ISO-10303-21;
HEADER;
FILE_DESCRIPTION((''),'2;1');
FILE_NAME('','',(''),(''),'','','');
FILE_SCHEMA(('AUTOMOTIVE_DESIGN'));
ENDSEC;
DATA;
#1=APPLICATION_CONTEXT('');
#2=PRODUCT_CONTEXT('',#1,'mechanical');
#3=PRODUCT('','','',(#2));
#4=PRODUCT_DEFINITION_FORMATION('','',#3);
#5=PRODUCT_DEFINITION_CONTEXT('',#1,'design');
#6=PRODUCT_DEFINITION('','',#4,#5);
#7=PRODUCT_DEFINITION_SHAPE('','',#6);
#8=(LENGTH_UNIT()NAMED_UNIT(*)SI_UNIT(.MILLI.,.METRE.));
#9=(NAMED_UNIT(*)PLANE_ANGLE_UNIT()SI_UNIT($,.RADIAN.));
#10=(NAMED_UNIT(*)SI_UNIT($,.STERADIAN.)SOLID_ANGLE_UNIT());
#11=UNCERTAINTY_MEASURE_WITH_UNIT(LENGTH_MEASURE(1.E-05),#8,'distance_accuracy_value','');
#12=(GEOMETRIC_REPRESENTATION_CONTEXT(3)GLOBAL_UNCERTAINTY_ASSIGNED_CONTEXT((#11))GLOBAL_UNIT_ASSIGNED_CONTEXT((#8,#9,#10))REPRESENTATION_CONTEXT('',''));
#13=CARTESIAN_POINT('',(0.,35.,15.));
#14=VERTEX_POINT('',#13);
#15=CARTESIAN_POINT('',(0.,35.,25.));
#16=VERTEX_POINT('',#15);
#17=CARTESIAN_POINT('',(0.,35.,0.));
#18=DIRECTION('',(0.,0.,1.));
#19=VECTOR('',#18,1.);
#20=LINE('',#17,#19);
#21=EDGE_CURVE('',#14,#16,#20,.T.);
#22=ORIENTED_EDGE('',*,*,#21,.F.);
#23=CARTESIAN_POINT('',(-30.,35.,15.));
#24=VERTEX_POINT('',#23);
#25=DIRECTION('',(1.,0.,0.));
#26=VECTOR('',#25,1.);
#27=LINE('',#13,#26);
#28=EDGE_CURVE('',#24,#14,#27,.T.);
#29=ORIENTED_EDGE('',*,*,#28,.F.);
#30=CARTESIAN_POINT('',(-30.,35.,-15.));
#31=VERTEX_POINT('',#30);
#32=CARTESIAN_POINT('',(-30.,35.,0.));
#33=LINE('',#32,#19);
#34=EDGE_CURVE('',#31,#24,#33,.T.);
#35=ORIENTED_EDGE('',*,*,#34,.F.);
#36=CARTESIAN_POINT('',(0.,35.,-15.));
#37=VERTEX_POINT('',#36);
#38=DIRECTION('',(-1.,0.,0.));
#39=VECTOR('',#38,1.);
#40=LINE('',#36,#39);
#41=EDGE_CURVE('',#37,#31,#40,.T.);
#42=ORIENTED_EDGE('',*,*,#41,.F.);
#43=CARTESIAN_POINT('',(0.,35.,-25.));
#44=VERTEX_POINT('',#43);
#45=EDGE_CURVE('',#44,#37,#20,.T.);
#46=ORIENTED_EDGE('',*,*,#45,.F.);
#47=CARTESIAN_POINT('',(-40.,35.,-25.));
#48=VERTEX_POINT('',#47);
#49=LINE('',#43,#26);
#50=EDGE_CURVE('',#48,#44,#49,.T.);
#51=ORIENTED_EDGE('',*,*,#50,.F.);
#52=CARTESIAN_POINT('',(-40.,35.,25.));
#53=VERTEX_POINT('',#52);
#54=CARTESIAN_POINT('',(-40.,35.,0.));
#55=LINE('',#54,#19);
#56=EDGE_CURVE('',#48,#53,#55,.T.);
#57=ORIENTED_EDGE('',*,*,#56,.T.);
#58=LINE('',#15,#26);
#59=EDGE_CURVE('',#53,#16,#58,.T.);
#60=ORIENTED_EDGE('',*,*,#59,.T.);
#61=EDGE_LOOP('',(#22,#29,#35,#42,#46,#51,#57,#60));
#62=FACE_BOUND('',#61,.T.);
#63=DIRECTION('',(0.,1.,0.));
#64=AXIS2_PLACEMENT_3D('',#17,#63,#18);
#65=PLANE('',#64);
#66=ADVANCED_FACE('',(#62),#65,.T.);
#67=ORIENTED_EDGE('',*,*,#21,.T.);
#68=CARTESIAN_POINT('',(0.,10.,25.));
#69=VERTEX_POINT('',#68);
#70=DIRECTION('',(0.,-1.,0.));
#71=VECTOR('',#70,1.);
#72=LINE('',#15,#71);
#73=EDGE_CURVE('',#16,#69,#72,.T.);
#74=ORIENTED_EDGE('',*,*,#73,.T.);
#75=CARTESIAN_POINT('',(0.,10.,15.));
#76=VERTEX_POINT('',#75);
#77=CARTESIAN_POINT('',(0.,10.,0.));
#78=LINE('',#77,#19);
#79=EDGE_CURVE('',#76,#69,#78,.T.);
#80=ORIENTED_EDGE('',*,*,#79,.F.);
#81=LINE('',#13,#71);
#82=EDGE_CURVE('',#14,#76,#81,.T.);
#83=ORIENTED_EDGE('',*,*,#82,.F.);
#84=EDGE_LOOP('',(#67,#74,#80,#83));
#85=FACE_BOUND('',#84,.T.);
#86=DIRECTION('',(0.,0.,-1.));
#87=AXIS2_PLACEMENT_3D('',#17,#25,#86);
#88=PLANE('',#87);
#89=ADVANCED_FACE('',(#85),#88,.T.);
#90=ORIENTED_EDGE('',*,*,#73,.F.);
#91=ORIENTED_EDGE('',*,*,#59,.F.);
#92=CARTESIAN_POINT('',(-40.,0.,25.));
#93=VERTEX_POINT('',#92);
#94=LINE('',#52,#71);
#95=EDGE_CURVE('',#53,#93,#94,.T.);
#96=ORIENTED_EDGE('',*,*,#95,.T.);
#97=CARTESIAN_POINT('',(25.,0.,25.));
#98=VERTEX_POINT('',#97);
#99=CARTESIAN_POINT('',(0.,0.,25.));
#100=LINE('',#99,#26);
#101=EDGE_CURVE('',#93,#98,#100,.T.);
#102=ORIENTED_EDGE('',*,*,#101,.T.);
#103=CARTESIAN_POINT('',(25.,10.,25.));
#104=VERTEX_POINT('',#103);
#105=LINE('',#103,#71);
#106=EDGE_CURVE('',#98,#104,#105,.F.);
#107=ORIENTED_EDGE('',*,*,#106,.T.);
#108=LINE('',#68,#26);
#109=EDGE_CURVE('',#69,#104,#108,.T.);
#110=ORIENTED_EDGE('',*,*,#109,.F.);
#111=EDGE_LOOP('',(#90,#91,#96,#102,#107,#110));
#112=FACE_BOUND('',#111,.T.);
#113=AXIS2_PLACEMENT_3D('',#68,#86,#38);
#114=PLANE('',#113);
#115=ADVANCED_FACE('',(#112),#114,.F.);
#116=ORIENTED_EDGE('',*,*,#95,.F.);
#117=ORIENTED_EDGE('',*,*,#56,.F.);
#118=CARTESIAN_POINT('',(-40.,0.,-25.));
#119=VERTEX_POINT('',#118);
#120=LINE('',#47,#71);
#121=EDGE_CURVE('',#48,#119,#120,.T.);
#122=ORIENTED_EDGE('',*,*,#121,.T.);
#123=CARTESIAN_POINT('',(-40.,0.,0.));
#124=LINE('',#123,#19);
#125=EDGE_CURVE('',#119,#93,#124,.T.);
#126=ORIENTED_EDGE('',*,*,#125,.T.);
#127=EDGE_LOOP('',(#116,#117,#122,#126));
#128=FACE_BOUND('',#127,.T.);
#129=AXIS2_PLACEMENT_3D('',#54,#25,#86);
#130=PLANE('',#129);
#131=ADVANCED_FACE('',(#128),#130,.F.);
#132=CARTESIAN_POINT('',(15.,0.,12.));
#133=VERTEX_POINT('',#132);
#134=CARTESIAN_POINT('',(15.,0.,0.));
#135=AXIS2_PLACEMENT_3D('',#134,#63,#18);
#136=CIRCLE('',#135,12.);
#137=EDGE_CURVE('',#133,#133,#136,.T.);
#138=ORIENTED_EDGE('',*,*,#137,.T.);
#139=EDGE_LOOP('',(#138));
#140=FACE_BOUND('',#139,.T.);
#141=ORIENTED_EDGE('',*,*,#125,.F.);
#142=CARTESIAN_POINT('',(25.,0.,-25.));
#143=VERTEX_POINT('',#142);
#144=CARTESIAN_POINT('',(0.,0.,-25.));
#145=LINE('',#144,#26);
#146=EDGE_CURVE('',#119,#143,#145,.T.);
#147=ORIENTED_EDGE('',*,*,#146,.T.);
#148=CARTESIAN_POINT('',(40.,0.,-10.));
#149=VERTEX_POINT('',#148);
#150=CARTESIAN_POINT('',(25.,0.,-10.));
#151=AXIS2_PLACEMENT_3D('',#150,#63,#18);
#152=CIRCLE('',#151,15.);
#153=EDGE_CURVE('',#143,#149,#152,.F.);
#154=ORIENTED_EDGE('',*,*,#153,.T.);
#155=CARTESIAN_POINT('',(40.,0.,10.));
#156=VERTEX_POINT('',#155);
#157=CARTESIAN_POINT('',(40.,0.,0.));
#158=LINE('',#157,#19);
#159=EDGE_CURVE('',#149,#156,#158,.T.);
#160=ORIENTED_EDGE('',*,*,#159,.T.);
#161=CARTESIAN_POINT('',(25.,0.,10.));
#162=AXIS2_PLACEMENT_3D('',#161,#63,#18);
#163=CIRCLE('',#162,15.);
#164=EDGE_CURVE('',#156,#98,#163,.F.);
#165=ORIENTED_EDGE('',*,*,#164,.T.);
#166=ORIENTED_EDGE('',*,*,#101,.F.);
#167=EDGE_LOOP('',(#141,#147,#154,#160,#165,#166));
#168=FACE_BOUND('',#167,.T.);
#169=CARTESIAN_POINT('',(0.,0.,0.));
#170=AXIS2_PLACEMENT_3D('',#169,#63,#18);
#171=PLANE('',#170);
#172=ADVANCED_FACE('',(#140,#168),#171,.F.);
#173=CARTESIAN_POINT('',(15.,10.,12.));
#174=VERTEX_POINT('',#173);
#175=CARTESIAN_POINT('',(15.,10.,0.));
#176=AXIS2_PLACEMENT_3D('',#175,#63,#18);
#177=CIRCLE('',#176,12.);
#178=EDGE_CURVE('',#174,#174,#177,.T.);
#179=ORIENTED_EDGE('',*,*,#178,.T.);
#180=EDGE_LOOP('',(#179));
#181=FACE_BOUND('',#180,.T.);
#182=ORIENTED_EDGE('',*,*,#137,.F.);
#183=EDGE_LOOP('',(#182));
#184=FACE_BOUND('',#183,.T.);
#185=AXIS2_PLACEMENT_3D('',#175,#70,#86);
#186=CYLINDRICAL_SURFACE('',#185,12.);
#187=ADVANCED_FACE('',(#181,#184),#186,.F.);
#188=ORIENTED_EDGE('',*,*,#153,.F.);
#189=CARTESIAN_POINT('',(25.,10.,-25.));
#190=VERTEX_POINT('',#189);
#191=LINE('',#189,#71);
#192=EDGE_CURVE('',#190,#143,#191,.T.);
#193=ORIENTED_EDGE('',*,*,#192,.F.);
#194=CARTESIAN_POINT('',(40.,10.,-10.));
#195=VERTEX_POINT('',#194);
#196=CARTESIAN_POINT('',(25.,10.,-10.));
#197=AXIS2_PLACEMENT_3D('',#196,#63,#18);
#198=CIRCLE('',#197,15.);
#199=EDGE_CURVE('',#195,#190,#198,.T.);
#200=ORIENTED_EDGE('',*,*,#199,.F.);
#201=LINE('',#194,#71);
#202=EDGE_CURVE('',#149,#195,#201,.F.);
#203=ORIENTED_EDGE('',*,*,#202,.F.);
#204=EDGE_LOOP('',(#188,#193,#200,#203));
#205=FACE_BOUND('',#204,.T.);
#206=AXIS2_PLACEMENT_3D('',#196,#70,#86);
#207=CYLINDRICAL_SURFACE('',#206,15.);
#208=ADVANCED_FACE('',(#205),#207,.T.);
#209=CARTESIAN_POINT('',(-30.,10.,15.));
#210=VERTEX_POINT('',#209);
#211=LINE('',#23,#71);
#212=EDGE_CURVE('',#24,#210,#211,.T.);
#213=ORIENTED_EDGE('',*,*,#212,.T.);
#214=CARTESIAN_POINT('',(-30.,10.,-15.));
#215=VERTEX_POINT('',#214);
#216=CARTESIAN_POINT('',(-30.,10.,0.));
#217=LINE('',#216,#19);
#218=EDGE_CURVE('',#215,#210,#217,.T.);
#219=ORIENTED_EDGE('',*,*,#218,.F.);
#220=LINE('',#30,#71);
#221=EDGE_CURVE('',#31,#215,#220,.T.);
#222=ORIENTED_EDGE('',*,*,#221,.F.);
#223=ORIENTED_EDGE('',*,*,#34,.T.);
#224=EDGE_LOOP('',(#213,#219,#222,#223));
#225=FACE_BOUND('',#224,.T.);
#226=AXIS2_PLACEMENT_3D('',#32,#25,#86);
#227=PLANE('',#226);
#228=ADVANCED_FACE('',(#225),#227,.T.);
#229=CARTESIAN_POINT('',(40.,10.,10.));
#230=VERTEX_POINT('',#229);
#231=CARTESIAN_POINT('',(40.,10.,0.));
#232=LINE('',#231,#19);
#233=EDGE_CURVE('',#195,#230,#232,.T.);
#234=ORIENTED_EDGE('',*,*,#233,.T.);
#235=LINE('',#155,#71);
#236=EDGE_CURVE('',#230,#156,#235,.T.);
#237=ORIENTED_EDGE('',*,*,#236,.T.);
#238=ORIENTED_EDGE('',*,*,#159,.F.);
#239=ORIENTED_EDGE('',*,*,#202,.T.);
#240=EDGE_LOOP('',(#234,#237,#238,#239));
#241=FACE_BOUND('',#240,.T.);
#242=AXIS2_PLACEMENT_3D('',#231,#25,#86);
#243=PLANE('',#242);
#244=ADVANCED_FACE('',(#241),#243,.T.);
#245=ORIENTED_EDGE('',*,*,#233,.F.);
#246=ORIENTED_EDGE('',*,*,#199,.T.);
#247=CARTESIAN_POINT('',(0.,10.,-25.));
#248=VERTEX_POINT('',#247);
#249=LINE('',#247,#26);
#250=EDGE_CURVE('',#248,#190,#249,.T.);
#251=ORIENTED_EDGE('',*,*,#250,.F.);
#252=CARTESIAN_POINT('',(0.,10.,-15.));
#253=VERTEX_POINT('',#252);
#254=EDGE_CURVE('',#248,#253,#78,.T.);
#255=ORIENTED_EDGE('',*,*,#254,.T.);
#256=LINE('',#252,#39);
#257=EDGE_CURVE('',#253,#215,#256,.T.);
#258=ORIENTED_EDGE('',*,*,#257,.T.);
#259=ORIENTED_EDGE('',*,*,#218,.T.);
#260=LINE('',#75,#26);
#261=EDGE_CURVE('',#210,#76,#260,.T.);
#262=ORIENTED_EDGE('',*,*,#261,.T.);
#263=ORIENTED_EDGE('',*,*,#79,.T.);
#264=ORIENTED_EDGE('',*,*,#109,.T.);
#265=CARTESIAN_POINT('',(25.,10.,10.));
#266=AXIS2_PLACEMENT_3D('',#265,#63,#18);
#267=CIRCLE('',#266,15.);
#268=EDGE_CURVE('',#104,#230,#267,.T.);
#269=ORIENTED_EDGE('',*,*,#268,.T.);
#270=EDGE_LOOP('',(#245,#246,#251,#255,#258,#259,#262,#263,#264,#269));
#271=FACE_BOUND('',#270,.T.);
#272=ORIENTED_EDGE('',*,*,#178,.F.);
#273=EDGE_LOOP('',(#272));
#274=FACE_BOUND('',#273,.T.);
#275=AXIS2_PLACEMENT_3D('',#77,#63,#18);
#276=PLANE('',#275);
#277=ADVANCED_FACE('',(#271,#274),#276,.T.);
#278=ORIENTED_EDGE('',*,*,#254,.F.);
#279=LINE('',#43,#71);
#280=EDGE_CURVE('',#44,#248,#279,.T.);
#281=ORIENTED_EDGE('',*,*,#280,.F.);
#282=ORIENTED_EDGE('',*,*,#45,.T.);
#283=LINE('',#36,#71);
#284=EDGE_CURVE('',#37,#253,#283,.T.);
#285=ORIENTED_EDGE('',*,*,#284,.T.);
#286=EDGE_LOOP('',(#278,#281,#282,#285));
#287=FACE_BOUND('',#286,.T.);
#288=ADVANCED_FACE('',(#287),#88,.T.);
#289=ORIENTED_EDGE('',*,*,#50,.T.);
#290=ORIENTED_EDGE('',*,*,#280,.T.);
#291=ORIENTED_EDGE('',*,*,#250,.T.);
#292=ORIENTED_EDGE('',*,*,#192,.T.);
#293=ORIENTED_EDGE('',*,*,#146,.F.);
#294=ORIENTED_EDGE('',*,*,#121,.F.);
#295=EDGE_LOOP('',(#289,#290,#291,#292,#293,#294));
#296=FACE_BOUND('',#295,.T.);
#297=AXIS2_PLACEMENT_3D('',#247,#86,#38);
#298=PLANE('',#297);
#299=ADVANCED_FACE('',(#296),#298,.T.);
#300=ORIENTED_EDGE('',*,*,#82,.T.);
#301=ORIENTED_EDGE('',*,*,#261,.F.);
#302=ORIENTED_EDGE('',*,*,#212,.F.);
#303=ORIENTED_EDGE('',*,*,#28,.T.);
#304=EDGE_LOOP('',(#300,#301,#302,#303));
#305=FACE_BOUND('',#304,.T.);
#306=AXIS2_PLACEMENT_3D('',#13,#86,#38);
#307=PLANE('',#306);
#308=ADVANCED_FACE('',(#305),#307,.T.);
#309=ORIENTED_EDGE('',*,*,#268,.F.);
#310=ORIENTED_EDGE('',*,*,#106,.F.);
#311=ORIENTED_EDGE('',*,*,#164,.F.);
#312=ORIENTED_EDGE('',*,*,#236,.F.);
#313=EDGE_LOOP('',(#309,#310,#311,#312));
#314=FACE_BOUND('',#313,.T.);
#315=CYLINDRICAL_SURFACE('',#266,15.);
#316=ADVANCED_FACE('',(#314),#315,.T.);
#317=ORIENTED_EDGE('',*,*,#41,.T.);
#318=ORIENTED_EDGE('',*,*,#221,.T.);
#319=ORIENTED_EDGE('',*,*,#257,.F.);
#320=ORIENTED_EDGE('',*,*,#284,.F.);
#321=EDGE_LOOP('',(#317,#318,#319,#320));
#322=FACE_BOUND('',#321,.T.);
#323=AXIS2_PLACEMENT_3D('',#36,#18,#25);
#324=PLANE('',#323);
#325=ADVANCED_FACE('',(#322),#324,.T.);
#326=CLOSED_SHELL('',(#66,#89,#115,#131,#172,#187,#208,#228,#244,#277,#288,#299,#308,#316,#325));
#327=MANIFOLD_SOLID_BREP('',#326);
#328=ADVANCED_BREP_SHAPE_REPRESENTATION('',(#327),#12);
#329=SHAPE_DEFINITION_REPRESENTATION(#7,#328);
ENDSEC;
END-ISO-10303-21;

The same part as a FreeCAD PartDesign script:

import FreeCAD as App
import Part
import Sketcher


def edges_at(feature, points):
    """Names of the edges that pass closest to the given points."""
    edges = feature.Shape.Edges
    near = lambda p: min(range(len(edges)), key=lambda i: edges[i].distToShape(Part.Vertex(*p))[0])
    return sorted({f"Edge{near(p) + 1}" for p in points})

doc = App.newDocument("Part")
body = doc.addObject("PartDesign::Body", "Body")

sketch1 = body.newObject("Sketcher::SketchObject", "Sketch")
sketch1.AttachmentSupport = (doc.getObject("XZ_Plane"), [""])
sketch1.MapMode = "FlatFace"
sketch1.addGeometry(Part.LineSegment(App.Vector(40, -25, 0), App.Vector(0, -25, 0)), False)
sketch1.addGeometry(Part.LineSegment(App.Vector(0, -25, 0), App.Vector(0, -15, 0)), False)
sketch1.addGeometry(Part.LineSegment(App.Vector(0, -15, 0), App.Vector(-30, -15, 0)), False)
sketch1.addGeometry(Part.LineSegment(App.Vector(-30, -15, 0), App.Vector(-30, 15, 0)), False)
sketch1.addGeometry(Part.LineSegment(App.Vector(-30, 15, 0), App.Vector(0, 15, 0)), False)
sketch1.addGeometry(Part.LineSegment(App.Vector(0, 15, 0), App.Vector(0, 25, 0)), False)
sketch1.addGeometry(Part.LineSegment(App.Vector(0, 25, 0), App.Vector(40, 25, 0)), False)
sketch1.addGeometry(Part.LineSegment(App.Vector(40, 25, 0), App.Vector(40, -25, 0)), False)
sketch1.addGeometry(Part.Circle(App.Vector(15, 0, 0), App.Vector(0, 0, 1), 12), False)
sketch1.addConstraint(Sketcher.Constraint("Coincident", 0, 2, 1, 1))
sketch1.addConstraint(Sketcher.Constraint("Coincident", 1, 2, 2, 1))
sketch1.addConstraint(Sketcher.Constraint("Coincident", 2, 2, 3, 1))
sketch1.addConstraint(Sketcher.Constraint("Coincident", 3, 2, 4, 1))
sketch1.addConstraint(Sketcher.Constraint("Coincident", 4, 2, 5, 1))
sketch1.addConstraint(Sketcher.Constraint("Coincident", 5, 2, 6, 1))
sketch1.addConstraint(Sketcher.Constraint("Coincident", 6, 2, 7, 1))
sketch1.addConstraint(Sketcher.Constraint("Coincident", 7, 2, 0, 1))
sketch1.addConstraint(Sketcher.Constraint("Horizontal", 0))
sketch1.addConstraint(Sketcher.Constraint("Vertical", 1))
sketch1.addConstraint(Sketcher.Constraint("Horizontal", 2))
sketch1.addConstraint(Sketcher.Constraint("Vertical", 3))
sketch1.addConstraint(Sketcher.Constraint("Horizontal", 4))
sketch1.addConstraint(Sketcher.Constraint("Vertical", 5))
sketch1.addConstraint(Sketcher.Constraint("Horizontal", 6))
sketch1.addConstraint(Sketcher.Constraint("Vertical", 7))
sketch1.addConstraint(Sketcher.Constraint("Symmetric", 1, 2, 4, 2, -1, 1))
sketch1.addConstraint(Sketcher.Constraint("Symmetric", 0, 2, 5, 2, -1))
sketch1.addConstraint(Sketcher.Constraint("PointOnObject", 8, 3, -1))
sketch1.addConstraint(Sketcher.Constraint("Equal", 4, 3))
sketch1.addConstraint(Sketcher.Constraint("Diameter", 8, 24.0))
sketch1.addConstraint(Sketcher.Constraint("DistanceX", 0, 2, 0, 1, 40.0))
sketch1.addConstraint(Sketcher.Constraint("DistanceX", 2, 2, 2, 1, 30.0))
sketch1.addConstraint(Sketcher.Constraint("DistanceY", 1, 1, 1, 2, 10.0))
sketch1.addConstraint(Sketcher.Constraint("DistanceX", -1, 1, 8, 3, 15.0))
pad1 = body.newObject("PartDesign::Pad", "Pad")
pad1.Profile = sketch1
pad1.Length = 10
pad1.Reversed = True

sketch2 = body.newObject("Sketcher::SketchObject", "Sketch001")
sketch2.AttachmentSupport = (doc.getObject("XZ_Plane"), [""])
sketch2.MapMode = "FlatFace"
sketch2.addGeometry(Part.LineSegment(App.Vector(0, -15, 0), App.Vector(0, -25, 0)), False)
sketch2.addGeometry(Part.LineSegment(App.Vector(0, -25, 0), App.Vector(-40, -25, 0)), False)
sketch2.addGeometry(Part.LineSegment(App.Vector(-40, -25, 0), App.Vector(-40, 25, 0)), False)
sketch2.addGeometry(Part.LineSegment(App.Vector(-40, 25, 0), App.Vector(0, 25, 0)), False)
sketch2.addGeometry(Part.LineSegment(App.Vector(0, 25, 0), App.Vector(0, 15, 0)), False)
sketch2.addGeometry(Part.LineSegment(App.Vector(0, 15, 0), App.Vector(-30, 15, 0)), False)
sketch2.addGeometry(Part.LineSegment(App.Vector(-30, 15, 0), App.Vector(-30, -15, 0)), False)
sketch2.addGeometry(Part.LineSegment(App.Vector(-30, -15, 0), App.Vector(0, -15, 0)), False)
sketch2.addConstraint(Sketcher.Constraint("Coincident", 0, 2, 1, 1))
sketch2.addConstraint(Sketcher.Constraint("Coincident", 1, 2, 2, 1))
sketch2.addConstraint(Sketcher.Constraint("Coincident", 2, 2, 3, 1))
sketch2.addConstraint(Sketcher.Constraint("Coincident", 3, 2, 4, 1))
sketch2.addConstraint(Sketcher.Constraint("Coincident", 4, 2, 5, 1))
sketch2.addConstraint(Sketcher.Constraint("Coincident", 5, 2, 6, 1))
sketch2.addConstraint(Sketcher.Constraint("Coincident", 6, 2, 7, 1))
sketch2.addConstraint(Sketcher.Constraint("Coincident", 7, 2, 0, 1))
sketch2.addConstraint(Sketcher.Constraint("Vertical", 0))
sketch2.addConstraint(Sketcher.Constraint("Horizontal", 1))
sketch2.addConstraint(Sketcher.Constraint("Vertical", 2))
sketch2.addConstraint(Sketcher.Constraint("Horizontal", 3))
sketch2.addConstraint(Sketcher.Constraint("Vertical", 4))
sketch2.addConstraint(Sketcher.Constraint("Horizontal", 5))
sketch2.addConstraint(Sketcher.Constraint("Vertical", 6))
sketch2.addConstraint(Sketcher.Constraint("Horizontal", 7))
sketch2.addConstraint(Sketcher.Constraint("Symmetric", 0, 2, 3, 2, -1, 1))
sketch2.addConstraint(Sketcher.Constraint("Symmetric", 4, 2, 7, 2, -1))
sketch2.addConstraint(Sketcher.Constraint("Equal", 7, 6))
sketch2.addConstraint(Sketcher.Constraint("DistanceX", 1, 2, 1, 1, 40.0))
sketch2.addConstraint(Sketcher.Constraint("DistanceX", 5, 2, 5, 1, 30.0))
sketch2.addConstraint(Sketcher.Constraint("DistanceY", 0, 2, 0, 1, 10.0))
pad2 = body.newObject("PartDesign::Pad", "Pad001")
pad2.Profile = sketch2
pad2.Length = 35
pad2.Reversed = True
doc.recompute()

fillet = body.newObject("PartDesign::Fillet", "Fillet")
fillet.Base = (pad2, edges_at(pad2, [(40, 5, -25), (40, 5, 25)]))
fillet.Radius = 15

doc.recompute()
